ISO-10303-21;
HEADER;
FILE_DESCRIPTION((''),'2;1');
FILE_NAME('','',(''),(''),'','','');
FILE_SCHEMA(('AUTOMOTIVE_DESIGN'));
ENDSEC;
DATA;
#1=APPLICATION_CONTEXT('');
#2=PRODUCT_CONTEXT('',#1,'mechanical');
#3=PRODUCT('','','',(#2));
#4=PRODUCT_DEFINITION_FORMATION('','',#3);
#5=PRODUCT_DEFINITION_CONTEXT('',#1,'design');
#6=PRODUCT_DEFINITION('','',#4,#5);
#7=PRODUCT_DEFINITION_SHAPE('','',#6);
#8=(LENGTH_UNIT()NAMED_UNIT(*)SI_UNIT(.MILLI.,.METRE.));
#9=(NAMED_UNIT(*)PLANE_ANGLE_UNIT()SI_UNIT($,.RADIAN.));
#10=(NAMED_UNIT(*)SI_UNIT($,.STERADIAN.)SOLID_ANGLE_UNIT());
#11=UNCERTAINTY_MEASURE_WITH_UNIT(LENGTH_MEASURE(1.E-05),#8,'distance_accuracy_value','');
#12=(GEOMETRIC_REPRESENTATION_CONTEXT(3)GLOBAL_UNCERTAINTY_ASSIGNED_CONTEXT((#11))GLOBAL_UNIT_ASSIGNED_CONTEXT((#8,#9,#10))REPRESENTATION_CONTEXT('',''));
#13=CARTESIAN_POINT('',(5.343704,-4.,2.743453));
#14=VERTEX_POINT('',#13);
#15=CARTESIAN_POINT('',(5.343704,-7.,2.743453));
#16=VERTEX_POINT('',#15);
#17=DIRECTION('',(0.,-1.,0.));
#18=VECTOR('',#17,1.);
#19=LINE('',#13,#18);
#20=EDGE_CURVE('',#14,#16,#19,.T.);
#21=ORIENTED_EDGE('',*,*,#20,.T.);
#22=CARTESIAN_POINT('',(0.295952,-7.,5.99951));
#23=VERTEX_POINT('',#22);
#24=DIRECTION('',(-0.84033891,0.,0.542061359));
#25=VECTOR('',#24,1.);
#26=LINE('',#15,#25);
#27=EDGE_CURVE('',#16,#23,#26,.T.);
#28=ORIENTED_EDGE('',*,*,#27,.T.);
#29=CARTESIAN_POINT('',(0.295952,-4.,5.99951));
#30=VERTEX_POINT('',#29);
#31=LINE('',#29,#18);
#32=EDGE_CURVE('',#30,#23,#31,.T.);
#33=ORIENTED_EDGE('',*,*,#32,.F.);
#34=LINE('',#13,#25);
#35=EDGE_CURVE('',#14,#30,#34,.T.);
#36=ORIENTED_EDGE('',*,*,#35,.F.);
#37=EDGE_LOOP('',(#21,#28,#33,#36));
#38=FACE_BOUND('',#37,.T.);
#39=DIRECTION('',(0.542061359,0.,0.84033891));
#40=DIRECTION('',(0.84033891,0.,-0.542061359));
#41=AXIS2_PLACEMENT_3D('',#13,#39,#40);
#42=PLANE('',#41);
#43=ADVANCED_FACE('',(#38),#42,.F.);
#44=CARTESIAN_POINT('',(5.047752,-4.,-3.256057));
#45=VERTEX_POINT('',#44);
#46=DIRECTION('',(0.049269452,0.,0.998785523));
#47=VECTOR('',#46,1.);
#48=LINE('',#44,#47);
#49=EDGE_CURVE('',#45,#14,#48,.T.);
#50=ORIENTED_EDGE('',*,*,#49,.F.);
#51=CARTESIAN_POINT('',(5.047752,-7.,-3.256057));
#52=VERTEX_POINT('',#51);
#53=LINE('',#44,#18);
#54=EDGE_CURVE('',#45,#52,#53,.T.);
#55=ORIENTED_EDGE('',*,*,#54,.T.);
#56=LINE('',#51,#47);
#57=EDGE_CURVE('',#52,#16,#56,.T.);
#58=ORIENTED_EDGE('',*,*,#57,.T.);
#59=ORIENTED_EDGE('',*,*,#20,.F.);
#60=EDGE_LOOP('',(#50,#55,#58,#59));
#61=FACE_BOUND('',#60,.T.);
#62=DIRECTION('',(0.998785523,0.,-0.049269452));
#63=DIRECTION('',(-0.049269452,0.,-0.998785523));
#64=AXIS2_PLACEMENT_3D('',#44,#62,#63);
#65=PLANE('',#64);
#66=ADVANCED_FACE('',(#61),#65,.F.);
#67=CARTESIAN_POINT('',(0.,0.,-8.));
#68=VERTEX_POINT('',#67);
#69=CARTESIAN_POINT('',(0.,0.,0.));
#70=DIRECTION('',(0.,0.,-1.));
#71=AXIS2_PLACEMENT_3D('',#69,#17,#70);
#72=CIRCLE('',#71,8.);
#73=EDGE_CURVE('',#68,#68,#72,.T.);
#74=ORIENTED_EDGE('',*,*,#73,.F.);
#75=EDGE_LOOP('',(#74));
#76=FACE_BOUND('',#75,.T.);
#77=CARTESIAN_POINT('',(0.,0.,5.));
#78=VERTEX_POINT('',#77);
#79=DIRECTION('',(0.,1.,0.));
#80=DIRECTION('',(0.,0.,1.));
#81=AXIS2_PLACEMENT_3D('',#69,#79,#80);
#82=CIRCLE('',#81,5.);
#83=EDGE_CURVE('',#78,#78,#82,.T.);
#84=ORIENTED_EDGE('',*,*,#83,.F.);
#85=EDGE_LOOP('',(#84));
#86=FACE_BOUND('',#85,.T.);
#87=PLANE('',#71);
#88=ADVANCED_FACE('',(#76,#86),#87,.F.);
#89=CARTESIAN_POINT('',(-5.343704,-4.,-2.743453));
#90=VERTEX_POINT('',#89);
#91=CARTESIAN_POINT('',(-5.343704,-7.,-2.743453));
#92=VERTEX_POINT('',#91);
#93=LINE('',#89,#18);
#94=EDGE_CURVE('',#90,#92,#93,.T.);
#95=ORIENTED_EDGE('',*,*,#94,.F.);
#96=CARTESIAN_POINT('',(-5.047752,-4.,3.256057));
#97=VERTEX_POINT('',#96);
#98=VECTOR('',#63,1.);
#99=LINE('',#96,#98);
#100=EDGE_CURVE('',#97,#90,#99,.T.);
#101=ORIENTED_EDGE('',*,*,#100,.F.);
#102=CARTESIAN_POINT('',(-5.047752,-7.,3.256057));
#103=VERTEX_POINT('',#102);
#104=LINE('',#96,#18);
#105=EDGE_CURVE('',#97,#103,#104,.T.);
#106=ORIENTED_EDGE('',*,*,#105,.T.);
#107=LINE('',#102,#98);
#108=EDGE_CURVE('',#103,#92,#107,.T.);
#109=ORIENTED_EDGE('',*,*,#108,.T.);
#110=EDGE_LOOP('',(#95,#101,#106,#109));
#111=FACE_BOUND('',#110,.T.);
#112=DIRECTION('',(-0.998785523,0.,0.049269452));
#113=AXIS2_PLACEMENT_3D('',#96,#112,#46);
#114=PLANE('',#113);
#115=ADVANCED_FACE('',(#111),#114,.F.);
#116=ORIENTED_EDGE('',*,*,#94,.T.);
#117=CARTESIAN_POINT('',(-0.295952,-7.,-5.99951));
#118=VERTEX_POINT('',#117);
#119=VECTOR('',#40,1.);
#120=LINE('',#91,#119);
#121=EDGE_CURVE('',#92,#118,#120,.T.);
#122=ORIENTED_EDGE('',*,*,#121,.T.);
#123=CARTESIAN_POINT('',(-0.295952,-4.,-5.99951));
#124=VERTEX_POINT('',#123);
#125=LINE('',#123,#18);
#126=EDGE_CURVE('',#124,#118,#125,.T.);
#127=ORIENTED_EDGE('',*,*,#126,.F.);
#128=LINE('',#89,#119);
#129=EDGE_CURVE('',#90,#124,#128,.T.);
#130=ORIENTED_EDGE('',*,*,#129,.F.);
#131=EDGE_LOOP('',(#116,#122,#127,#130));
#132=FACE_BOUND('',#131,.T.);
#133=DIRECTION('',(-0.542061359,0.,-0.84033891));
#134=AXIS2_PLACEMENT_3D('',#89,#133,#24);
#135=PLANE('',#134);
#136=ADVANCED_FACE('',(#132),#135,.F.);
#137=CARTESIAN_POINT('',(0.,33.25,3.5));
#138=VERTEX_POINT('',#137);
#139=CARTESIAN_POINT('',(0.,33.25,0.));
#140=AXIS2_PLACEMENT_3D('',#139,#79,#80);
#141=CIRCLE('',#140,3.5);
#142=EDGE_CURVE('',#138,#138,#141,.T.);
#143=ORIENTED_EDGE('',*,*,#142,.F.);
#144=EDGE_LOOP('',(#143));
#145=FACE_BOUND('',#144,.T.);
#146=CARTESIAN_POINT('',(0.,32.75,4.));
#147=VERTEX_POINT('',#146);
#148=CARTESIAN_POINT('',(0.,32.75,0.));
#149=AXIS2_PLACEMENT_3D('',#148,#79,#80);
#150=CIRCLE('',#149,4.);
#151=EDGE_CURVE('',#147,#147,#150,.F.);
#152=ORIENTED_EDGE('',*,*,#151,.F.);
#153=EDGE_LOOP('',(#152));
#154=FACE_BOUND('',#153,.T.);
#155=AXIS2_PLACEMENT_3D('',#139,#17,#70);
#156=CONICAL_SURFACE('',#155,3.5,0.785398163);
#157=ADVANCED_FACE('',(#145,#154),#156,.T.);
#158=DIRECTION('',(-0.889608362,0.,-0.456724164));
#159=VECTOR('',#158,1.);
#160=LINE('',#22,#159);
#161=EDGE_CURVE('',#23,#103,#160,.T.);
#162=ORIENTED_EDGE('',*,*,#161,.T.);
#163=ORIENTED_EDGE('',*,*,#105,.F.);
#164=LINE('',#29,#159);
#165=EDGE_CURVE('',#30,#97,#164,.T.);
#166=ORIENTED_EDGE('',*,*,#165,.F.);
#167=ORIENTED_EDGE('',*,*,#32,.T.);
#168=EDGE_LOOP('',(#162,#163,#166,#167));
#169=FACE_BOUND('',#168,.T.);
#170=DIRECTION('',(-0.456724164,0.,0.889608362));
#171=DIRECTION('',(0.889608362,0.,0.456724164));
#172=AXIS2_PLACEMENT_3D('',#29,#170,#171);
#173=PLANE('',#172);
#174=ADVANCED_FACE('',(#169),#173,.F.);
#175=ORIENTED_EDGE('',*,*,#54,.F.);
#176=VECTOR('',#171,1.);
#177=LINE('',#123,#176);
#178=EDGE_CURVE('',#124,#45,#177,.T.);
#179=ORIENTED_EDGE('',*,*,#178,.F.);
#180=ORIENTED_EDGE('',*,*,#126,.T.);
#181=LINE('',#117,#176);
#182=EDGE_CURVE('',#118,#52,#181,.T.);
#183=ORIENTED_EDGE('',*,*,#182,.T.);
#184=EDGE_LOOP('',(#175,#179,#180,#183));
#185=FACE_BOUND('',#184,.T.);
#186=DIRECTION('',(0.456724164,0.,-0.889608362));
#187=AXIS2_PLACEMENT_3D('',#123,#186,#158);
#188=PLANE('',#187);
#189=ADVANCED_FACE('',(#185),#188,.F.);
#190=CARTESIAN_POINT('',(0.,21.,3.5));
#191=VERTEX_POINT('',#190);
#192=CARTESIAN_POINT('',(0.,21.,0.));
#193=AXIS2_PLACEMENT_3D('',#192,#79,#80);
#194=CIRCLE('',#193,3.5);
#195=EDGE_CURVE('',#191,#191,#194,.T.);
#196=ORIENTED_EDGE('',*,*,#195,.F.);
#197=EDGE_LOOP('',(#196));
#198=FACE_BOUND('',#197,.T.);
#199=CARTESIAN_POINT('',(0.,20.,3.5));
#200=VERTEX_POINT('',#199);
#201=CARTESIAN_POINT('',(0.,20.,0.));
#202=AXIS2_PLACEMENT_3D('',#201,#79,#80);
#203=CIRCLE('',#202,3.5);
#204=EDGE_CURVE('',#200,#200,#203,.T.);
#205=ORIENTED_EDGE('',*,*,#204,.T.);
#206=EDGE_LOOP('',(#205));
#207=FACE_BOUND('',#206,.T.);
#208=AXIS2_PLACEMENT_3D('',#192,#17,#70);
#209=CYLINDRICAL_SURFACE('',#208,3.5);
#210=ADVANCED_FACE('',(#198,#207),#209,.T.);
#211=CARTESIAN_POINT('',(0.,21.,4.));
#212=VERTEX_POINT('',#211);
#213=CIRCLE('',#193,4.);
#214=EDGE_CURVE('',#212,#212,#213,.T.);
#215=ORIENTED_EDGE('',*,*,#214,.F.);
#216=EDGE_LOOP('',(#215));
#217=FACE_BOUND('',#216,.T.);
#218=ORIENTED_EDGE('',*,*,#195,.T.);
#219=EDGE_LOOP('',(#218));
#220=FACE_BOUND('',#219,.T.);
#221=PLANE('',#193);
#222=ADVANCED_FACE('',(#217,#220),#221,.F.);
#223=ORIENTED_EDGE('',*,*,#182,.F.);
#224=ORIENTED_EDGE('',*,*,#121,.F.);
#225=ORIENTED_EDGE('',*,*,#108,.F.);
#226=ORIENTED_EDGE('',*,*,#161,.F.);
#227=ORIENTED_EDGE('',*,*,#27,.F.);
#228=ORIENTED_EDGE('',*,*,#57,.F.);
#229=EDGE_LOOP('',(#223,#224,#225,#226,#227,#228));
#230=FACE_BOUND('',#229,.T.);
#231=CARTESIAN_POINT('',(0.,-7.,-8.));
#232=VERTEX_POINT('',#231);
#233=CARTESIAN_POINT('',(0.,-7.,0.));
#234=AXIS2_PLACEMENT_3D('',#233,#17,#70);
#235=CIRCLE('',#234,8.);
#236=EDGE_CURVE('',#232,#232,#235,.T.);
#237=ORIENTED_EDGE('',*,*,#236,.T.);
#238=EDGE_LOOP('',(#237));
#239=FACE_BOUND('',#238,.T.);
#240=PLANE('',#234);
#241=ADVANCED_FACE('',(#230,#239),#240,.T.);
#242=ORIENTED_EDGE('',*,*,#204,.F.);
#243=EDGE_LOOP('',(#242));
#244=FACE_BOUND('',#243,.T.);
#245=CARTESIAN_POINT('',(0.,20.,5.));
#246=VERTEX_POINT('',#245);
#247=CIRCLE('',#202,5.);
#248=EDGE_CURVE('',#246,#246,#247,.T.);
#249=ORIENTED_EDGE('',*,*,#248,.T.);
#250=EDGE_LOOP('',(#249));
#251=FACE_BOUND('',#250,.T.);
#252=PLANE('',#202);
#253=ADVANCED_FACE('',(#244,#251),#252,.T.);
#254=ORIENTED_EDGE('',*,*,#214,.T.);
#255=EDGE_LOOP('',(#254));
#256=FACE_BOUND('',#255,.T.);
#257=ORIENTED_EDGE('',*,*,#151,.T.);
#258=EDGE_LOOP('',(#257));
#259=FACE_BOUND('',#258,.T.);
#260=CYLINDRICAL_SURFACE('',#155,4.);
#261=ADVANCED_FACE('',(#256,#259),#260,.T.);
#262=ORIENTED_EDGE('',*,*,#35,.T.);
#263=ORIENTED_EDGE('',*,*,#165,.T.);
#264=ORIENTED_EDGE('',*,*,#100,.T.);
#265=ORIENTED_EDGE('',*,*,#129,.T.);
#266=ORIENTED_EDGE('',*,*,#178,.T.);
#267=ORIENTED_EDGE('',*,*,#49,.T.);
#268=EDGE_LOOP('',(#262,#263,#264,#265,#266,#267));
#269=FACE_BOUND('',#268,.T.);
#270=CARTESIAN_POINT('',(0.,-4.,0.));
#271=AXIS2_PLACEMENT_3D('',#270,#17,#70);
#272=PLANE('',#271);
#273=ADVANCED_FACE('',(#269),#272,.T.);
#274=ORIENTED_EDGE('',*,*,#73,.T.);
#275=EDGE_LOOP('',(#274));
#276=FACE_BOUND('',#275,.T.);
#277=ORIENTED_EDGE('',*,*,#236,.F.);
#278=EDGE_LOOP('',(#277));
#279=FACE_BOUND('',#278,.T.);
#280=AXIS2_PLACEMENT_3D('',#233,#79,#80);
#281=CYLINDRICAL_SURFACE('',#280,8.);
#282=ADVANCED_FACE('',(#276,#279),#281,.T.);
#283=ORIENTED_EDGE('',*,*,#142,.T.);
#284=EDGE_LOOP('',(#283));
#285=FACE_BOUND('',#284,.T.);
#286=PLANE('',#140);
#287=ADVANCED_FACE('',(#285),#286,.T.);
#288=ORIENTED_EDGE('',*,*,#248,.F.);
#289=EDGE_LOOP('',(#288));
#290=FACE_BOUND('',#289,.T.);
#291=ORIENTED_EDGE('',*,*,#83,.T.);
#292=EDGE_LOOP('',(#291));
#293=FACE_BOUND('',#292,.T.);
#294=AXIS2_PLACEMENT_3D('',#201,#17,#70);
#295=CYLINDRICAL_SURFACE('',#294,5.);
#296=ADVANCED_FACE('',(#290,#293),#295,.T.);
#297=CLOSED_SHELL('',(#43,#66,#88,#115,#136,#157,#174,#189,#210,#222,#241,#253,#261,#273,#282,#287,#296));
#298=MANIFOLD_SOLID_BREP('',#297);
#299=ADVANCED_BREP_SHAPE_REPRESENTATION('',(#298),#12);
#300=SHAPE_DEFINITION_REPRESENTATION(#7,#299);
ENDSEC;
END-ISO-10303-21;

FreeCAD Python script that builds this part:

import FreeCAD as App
import Part
import Sketcher

V = App.Vector


def edges_at(feature, points):
    """Names of the edges that pass closest to the given points."""
    edges = feature.Shape.Edges
    near = lambda p: min(range(len(edges)), key=lambda i: edges[i].distToShape(Part.Vertex(*p))[0])
    return sorted({f"Edge{near(p) + 1}" for p in points})

doc = App.newDocument("Part")
params = doc.addObject("Spreadsheet::Sheet", "Params")
for row, (alias, value) in enumerate([
    ("sketch1_diameter", "10 mm"),
    ("pad1_length", "20 mm"),
    ("sketch2_diameter", "16 mm"),
    ("pad2_length", "7 mm"),
    ("sketch3_diameter", "8 mm"),
    ("pad3_length", "13.25 mm"),
    ("pocket1_length", "3 mm"),
    ("chamfer_size", "0.5 mm"),
    ("sketch5_diameter", "8 mm"),
    ("sketch5_diameter2", "7 mm"),
    ("pocket2_length", "1 mm"),
], start=1):
    params.set(f"A{row}", alias)
    params.set(f"B{row}", "=" + value)
    params.setAlias(f"B{row}", alias)

body = doc.addObject("PartDesign::Body", "Body")

# Sketch on XZ plane
sketch1 = doc.addObject("Sketcher::SketchObject", "Sketch")
body.addObject(sketch1)
sketch1.AttachmentSupport = (doc.XZ_Plane, [""])
sketch1.MapMode = "FlatFace"
sketch1.addGeometry(Part.Circle(V(0, 0, 0), V(0, 0, 1), 5), False)
sketch1.addConstraint(Sketcher.Constraint("Coincident", 0, 3, -1, 1))
sketch1.addConstraint(Sketcher.Constraint("Diameter", 0, 10.0))
sketch1.setExpression("Constraints[1]", "Params.sketch1_diameter")
pad1 = doc.addObject("PartDesign::Pad", "Pad")
body.addObject(pad1)
pad1.Profile = sketch1
pad1.setExpression("Length", "Params.pad1_length")
pad1.Reversed = True

# Sketch on XZ plane
sketch2 = doc.addObject("Sketcher::SketchObject", "Sketch001")
body.addObject(sketch2)
sketch2.AttachmentSupport = (doc.XZ_Plane, [""])
sketch2.MapMode = "FlatFace"
sketch2.addGeometry(Part.Circle(V(0, 0, 0), V(0, 0, 1), 8), False)
sketch2.addConstraint(Sketcher.Constraint("Coincident", 0, 3, -1, 1))
sketch2.addConstraint(Sketcher.Constraint("Diameter", 0, 16.0))
sketch2.setExpression("Constraints[1]", "Params.sketch2_diameter")
pad2 = doc.addObject("PartDesign::Pad", "Pad001")
body.addObject(pad2)
pad2.Profile = sketch2
pad2.setExpression("Length", "Params.pad2_length")

# Sketch on XZ plane
sketch3 = doc.addObject("Sketcher::SketchObject", "Sketch002")
body.addObject(sketch3)
sketch3.AttachmentSupport = (doc.XZ_Plane, [""])
sketch3.MapMode = "FlatFace"
sketch3.AttachmentOffset = App.Placement(V(0, 0, -20), App.Rotation())
sketch3.addGeometry(Part.Circle(V(0, 0, 0), V(0, 0, 1), 4), False)
sketch3.addConstraint(Sketcher.Constraint("Coincident", 0, 3, -1, 1))
sketch3.addConstraint(Sketcher.Constraint("Diameter", 0, 8.0))
sketch3.setExpression("Constraints[1]", "Params.sketch3_diameter")
pad3 = doc.addObject("PartDesign::Pad", "Pad002")
body.addObject(pad3)
pad3.Profile = sketch3
pad3.setExpression("Length", "Params.pad3_length")
pad3.Reversed = True

# Sketch on XZ plane
sketch4 = doc.addObject("Sketcher::SketchObject", "Sketch003")
body.addObject(sketch4)
sketch4.AttachmentSupport = (doc.XZ_Plane, [""])
sketch4.MapMode = "FlatFace"
sketch4.AttachmentOffset = App.Placement(V(0, 0, 7), App.Rotation())
sketch4.addGeometry(Part.LineSegment(V(0, 6, 0), V(-5, 3, 0)), False)
sketch4.addGeometry(Part.LineSegment(V(-5, 3, 0), V(-5, -3, 0)), False)
sketch4.addGeometry(Part.LineSegment(V(-5, -3, 0), V(0, -6, 0)), False)
sketch4.addGeometry(Part.LineSegment(V(0, -6, 0), V(5, -3, 0)), False)
sketch4.addGeometry(Part.LineSegment(V(5, -3, 0), V(5, 3, 0)), False)
sketch4.addGeometry(Part.LineSegment(V(5, 3, 0), V(0, 6, 0)), False)
sketch4.addConstraint(Sketcher.Constraint("Coincident", 0, 2, 1, 1))
sketch4.addConstraint(Sketcher.Constraint("Coincident", 1, 2, 2, 1))
sketch4.addConstraint(Sketcher.Constraint("Coincident", 2, 2, 3, 1))
sketch4.addConstraint(Sketcher.Constraint("Coincident", 3, 2, 4, 1))
sketch4.addConstraint(Sketcher.Constraint("Coincident", 4, 2, 5, 1))
sketch4.addConstraint(Sketcher.Constraint("Coincident", 5, 2, 0, 1))
sketch4.addConstraint(Sketcher.Constraint("Symmetric", 0, 2, 3, 2, -1, 1))
sketch4.addConstraint(Sketcher.Constraint("Symmetric", 1, 2, 4, 2, -1, 1))
sketch4.addConstraint(Sketcher.Constraint("Symmetric", 2, 2, 5, 2, -1, 1))
sketch4.addConstraint(Sketcher.Constraint("Equal", 0, 1))
sketch4.addConstraint(Sketcher.Constraint("Equal", 1, 2))
sketch4.addConstraint(Sketcher.Constraint("DistanceX", 0, 2, 2, 2, 4.7518))
sketch4.addConstraint(Sketcher.Constraint("DistanceX", 0, 2, -1, 1, 5.047752))
sketch4.addConstraint(Sketcher.Constraint("DistanceY", 2, 2, -1, 1, 5.99951))
sketch4.addConstraint(Sketcher.Constraint("DistanceX", 1, 2, 0, 2, 0.295952))
pocket1 = doc.addObject("PartDesign::Pocket", "Pocket")
body.addObject(pocket1)
pocket1.Profile = sketch4
pocket1.setExpression("Length", "Params.pocket1_length")
doc.recompute()

chamfer = doc.addObject("PartDesign::Chamfer", "Chamfer")
body.addObject(chamfer)
chamfer.Base = (pocket1, edges_at(pocket1, [(0, 33.25, -4)]))
chamfer.setExpression("Size", "Params.chamfer_size")

# Sketch on XZ plane
sketch5 = doc.addObject("Sketcher::SketchObject", "Sketch004")
body.addObject(sketch5)
sketch5.AttachmentSupport = (doc.XZ_Plane, [""])
sketch5.MapMode = "FlatFace"
sketch5.AttachmentOffset = App.Placement(V(0, 0, -20), App.Rotation())
sketch5.addGeometry(Part.Circle(V(0, 0, 0), V(0, 0, 1), 4), False)
sketch5.addGeometry(Part.Circle(V(0, 0, 0), V(0, 0, 1), 3.5), False)
sketch5.addConstraint(Sketcher.Constraint("Coincident", 0, 3, -1, 1))
sketch5.addConstraint(Sketcher.Constraint("Coincident", 1, 3, -1, 1))
sketch5.addConstraint(Sketcher.Constraint("Diameter", 0, 8.0))
sketch5.addConstraint(Sketcher.Constraint("Diameter", 1, 7.0))
sketch5.setExpression("Constraints[2]", "Params.sketch5_diameter")
sketch5.setExpression("Constraints[3]", "Params.sketch5_diameter2")
pocket2 = doc.addObject("PartDesign::Pocket", "Pocket001")
body.addObject(pocket2)
pocket2.Profile = sketch5
pocket2.setExpression("Length", "Params.pocket2_length")

doc.recompute()
